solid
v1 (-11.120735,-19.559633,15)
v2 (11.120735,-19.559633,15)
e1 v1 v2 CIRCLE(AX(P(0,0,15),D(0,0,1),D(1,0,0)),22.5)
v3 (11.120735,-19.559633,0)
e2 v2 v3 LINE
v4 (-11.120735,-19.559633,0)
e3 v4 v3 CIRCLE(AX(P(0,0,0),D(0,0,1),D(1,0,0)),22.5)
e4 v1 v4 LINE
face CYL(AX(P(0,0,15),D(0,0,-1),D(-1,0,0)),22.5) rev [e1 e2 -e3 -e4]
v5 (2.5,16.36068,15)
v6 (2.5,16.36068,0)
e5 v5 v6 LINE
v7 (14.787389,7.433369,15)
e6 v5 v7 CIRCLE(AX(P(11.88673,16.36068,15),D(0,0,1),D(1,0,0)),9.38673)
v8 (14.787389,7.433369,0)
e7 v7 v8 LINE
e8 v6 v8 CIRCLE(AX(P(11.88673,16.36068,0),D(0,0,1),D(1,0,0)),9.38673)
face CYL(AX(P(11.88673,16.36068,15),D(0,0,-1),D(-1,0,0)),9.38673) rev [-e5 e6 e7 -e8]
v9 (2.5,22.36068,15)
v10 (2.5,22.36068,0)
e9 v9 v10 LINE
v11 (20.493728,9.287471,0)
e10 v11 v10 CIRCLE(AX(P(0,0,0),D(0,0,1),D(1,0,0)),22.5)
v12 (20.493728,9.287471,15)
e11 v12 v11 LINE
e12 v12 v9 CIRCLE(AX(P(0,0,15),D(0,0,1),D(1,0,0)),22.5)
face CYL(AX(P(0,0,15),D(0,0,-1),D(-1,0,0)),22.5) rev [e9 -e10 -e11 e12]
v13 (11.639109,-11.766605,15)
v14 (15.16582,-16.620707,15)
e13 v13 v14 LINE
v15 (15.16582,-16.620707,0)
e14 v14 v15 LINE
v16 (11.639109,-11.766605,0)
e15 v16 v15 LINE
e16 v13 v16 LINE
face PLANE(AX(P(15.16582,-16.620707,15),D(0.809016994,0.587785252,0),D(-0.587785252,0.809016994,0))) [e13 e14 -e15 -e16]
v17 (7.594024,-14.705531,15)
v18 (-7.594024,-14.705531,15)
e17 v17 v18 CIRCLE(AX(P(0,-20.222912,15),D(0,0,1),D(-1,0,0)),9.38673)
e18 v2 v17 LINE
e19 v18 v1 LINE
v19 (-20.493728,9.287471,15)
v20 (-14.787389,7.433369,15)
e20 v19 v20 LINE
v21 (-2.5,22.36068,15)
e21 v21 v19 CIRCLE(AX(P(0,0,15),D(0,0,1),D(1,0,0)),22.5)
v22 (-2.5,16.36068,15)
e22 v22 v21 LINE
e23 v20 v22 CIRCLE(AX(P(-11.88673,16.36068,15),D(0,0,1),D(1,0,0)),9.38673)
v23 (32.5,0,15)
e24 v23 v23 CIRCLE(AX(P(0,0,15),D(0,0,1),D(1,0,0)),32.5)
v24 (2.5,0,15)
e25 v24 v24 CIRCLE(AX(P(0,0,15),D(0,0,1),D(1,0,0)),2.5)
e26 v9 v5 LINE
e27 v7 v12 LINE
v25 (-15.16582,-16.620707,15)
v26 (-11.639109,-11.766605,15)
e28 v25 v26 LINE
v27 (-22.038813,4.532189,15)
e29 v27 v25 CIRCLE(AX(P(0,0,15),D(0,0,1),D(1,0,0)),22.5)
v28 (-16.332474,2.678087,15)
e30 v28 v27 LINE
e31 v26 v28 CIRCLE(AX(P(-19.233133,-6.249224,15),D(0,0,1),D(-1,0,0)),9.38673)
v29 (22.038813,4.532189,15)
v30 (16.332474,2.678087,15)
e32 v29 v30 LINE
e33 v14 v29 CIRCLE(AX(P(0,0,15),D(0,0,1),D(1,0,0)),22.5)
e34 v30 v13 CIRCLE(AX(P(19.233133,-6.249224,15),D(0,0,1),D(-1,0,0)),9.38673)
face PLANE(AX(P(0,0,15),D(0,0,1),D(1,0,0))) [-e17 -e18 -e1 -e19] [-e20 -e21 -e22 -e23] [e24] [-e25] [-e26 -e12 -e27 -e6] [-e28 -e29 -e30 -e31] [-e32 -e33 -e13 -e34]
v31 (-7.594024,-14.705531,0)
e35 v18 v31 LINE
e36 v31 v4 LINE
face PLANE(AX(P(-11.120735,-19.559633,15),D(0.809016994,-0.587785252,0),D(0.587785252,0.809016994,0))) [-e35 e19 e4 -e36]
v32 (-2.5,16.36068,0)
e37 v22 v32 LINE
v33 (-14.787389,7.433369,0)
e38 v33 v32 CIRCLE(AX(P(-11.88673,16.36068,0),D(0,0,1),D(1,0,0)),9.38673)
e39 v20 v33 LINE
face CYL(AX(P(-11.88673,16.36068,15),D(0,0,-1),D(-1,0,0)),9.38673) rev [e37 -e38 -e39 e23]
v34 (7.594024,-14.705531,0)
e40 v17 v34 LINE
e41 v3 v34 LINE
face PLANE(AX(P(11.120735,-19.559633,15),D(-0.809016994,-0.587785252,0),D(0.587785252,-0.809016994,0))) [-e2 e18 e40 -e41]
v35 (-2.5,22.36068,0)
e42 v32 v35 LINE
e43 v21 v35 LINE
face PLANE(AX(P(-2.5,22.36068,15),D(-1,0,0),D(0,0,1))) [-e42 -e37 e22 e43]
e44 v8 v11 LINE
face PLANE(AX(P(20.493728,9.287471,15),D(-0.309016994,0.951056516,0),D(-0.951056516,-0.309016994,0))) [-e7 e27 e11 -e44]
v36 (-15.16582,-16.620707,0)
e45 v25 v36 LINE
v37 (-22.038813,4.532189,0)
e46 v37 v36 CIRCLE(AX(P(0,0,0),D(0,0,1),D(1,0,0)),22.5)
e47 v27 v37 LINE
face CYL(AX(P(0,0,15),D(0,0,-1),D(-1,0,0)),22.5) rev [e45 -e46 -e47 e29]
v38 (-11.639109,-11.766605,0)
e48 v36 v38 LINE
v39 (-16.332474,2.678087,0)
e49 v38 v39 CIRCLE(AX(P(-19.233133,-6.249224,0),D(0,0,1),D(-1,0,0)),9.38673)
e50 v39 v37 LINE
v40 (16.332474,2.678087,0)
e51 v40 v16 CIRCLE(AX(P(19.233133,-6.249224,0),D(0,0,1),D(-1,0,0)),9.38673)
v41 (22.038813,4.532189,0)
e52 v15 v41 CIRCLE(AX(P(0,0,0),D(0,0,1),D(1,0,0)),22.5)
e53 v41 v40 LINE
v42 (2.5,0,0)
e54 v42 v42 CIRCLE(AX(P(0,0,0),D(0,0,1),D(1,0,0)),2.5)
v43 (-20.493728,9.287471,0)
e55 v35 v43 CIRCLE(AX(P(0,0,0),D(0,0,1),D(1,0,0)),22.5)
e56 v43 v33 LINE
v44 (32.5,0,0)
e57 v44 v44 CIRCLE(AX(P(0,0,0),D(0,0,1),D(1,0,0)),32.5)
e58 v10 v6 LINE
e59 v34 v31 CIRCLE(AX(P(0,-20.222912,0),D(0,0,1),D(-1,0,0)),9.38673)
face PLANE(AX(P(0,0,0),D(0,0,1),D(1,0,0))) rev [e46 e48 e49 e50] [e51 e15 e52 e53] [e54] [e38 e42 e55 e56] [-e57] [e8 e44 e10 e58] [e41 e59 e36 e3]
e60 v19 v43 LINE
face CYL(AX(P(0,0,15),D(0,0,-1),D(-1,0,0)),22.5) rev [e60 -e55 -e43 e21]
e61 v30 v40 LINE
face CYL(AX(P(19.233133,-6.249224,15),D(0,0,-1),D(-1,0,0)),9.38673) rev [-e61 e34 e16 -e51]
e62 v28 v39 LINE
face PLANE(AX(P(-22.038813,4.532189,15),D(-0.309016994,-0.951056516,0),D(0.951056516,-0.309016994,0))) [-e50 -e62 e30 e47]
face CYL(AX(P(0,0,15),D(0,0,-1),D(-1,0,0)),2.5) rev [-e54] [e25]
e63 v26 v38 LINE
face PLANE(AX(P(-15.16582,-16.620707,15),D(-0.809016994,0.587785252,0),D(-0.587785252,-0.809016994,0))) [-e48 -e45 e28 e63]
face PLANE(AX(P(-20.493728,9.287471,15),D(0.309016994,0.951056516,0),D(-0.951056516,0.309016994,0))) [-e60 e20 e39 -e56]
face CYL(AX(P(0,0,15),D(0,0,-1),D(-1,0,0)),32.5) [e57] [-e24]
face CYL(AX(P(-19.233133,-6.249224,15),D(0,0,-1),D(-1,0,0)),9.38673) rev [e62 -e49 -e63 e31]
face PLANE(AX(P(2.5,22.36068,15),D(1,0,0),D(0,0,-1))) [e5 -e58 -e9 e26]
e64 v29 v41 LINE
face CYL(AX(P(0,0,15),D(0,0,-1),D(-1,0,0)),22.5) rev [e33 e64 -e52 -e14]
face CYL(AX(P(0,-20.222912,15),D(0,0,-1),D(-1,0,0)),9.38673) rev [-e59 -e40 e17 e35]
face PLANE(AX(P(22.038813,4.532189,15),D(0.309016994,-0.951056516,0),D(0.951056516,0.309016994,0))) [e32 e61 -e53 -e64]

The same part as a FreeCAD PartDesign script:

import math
import FreeCAD as App
import Part
import Sketcher
Q = App.Units.Quantity

doc = App.newDocument("Part")
body = doc.addObject("PartDesign::Body", "Body")

# Sketch on XY plane
sketch1 = body.newObject("Sketcher::SketchObject", "Sketch")
sketch1.AttachmentSupport = (doc.getObject("XY_Plane"), [""])
sketch1.MapMode = "FlatFace"
sketch1.addGeometry([
    Part.Circle(App.Vector(0, 0, 0), App.Vector(0, 0, 1), 32.5),  # 0
    Part.LineSegment(App.Vector(7.6, -14.7, 0), App.Vector(11.1, -19.6, 0)),  # 1
    Part.ArcOfCircle(Part.Circle(App.Vector(0, 0, 0), App.Vector(0, 0, 1), 22.5), math.radians(-120), math.radians(-60)),  # 2
    Part.LineSegment(App.Vector(-11.1, -19.6, 0), App.Vector(-7.6, -14.7, 0)),  # 3
    Part.ArcOfCircle(Part.Circle(App.Vector(0, -20.2, 0), App.Vector(0, 0, 1), 9.4), math.radians(36), math.radians(144)),  # 4
    Part.LineSegment(App.Vector(-11.6, -11.8, 0), App.Vector(-15.2, -16.6, 0)),  # 5
    Part.ArcOfCircle(Part.Circle(App.Vector(0, 0, 0), App.Vector(0, 0, 1), 22.5), math.radians(168), math.radians(228)),  # 6
    Part.LineSegment(App.Vector(-22, 4.5, 0), App.Vector(-16.3, 2.7, 0)),  # 7
    Part.ArcOfCircle(Part.Circle(App.Vector(-19.2, -6.2, 0), App.Vector(0, 0, 1), 9.4), math.radians(-36), math.radians(72)),  # 8
    Part.LineSegment(App.Vector(16.3, 2.7, 0), App.Vector(22, 4.5, 0)),  # 9
    Part.ArcOfCircle(Part.Circle(App.Vector(0, 0, 0), App.Vector(0, 0, 1), 22.5), math.radians(-48), math.radians(12)),  # 10
    Part.LineSegment(App.Vector(15.2, -16.6, 0), App.Vector(11.6, -11.8, 0)),  # 11
    Part.ArcOfCircle(Part.Circle(App.Vector(19.2, -6.2, 0), App.Vector(0, 0, 1), 9.4), math.radians(108), math.radians(216)),  # 12
    Part.Circle(App.Vector(0, 0, 0), App.Vector(0, 0, 1), 2.5),  # 13
    Part.ArcOfCircle(Part.Circle(App.Vector(0, 0, 0), App.Vector(0, 0, 1), 22.5), math.radians(96), math.radians(156)),  # 14
    Part.LineSegment(App.Vector(-2.5, 22.4, 0), App.Vector(-2.5, 16.4, 0)),  # 15
    Part.ArcOfCircle(Part.Circle(App.Vector(-11.9, 16.4, 0), App.Vector(0, 0, 1), 9.4), math.radians(-108), math.radians(0)),  # 16
    Part.LineSegment(App.Vector(-14.8, 7.4, 0), App.Vector(-20.5, 9.3, 0)),  # 17
    Part.LineSegment(App.Vector(2.5, 16.4, 0), App.Vector(2.5, 22.4, 0)),  # 18
    Part.ArcOfCircle(Part.Circle(App.Vector(0, 0, 0), App.Vector(0, 0, 1), 22.5), math.radians(24), math.radians(84)),  # 19
    Part.LineSegment(App.Vector(20.5, 9.3, 0), App.Vector(14.8, 7.4, 0)),  # 20
    Part.ArcOfCircle(Part.Circle(App.Vector(11.9, 16.4, 0), App.Vector(0, 0, 1), 9.4), math.radians(180), math.radians(288)),  # 21
], False)
sketch1.addConstraint([
    Sketcher.Constraint("Coincident", 1, 2, 2, 2),
    Sketcher.Constraint("Coincident", 2, 1, 3, 1),
    Sketcher.Constraint("Tangent", 3, 2, 4, 2),
    Sketcher.Constraint("Tangent", 4, 1, 1, 1),
    Sketcher.Constraint("Coincident", 5, 2, 6, 2),
    Sketcher.Constraint("Coincident", 6, 1, 7, 1),
    Sketcher.Constraint("Tangent", 7, 2, 8, 2),
    Sketcher.Constraint("Tangent", 8, 1, 5, 1),
    Sketcher.Constraint("Coincident", 9, 2, 10, 2),
    Sketcher.Constraint("Coincident", 10, 1, 11, 1),
    Sketcher.Constraint("Tangent", 11, 2, 12, 2),
    Sketcher.Constraint("Tangent", 12, 1, 9, 1),
    Sketcher.Constraint("Coincident", 14, 1, 15, 1),
    Sketcher.Constraint("Tangent", 15, 2, 16, 2),
    Sketcher.Constraint("Tangent", 16, 1, 17, 1),
    Sketcher.Constraint("Coincident", 17, 2, 14, 2),
    Sketcher.Constraint("Coincident", 18, 2, 19, 2),
    Sketcher.Constraint("Coincident", 19, 1, 20, 1),
    Sketcher.Constraint("Tangent", 20, 2, 21, 2),
    Sketcher.Constraint("Tangent", 21, 1, 18, 1),
    Sketcher.Constraint("Vertical", 15),
    Sketcher.Constraint("Vertical", 18),
    Sketcher.Constraint("Coincident", 0, 3, -1, 1),
    Sketcher.Constraint("Coincident", 2, 3, -1, 1),
    Sketcher.Constraint("Coincident", 6, 3, -1, 1),
    Sketcher.Constraint("Coincident", 10, 3, -1, 1),
    Sketcher.Constraint("Coincident", 13, 3, -1, 1),
    Sketcher.Constraint("Coincident", 14, 3, -1, 1),
    Sketcher.Constraint("Coincident", 19, 3, -1, 1),
    Sketcher.Constraint("Equal", 2, 6),
    Sketcher.Constraint("Equal", 4, 8),
    Sketcher.Constraint("Equal", 6, 10),
    Sketcher.Constraint("Equal", 8, 12),
    Sketcher.Constraint("Equal", 10, 14),
    Sketcher.Constraint("Equal", 12, 16),
    Sketcher.Constraint("Equal", 14, 19),
    Sketcher.Constraint("Equal", 16, 21),
    Sketcher.Constraint("Symmetric", 8, 3, 12, 3, -2),
    Sketcher.Constraint("Symmetric", 16, 3, 21, 3, -2),
    Sketcher.Constraint("Symmetric", 3, 2, 4, 1, -2),
    Sketcher.Constraint("Parallel", 3, 5),
    Sketcher.Constraint("Parallel", 1, 11),
    Sketcher.Constraint("Parallel", 7, 17),
    Sketcher.Constraint("Parallel", 9, 20),
    Sketcher.Constraint("Horizontal", 6, 1, 9, 2),
    Sketcher.Constraint("Equal", 3, 5),
    Sketcher.Constraint("Equal", 5, 7),
    Sketcher.Constraint("Equal", 11, 17),
    Sketcher.Constraint("Diameter", 0, 65.0),
    Sketcher.Constraint("Diameter", 13, 5.0),
    Sketcher.Constraint("Radius", 2, 22.5),
    Sketcher.Constraint("DistanceY", 15, 2, 15, 1, 6.0),
    Sketcher.Constraint("Angle", 1, Q("-54 deg")),
    Sketcher.Constraint("Angle", 7, Q("-18 deg")),
    Sketcher.Constraint("Distance", 1, 6.0),
    Sketcher.Constraint("DistanceX", 14, 1, 18, 2, 5.0),
])
pad1 = body.newObject("PartDesign::Pad", "Pad")
pad1.Profile = sketch1
pad1.Length = 15

doc.recompute()
